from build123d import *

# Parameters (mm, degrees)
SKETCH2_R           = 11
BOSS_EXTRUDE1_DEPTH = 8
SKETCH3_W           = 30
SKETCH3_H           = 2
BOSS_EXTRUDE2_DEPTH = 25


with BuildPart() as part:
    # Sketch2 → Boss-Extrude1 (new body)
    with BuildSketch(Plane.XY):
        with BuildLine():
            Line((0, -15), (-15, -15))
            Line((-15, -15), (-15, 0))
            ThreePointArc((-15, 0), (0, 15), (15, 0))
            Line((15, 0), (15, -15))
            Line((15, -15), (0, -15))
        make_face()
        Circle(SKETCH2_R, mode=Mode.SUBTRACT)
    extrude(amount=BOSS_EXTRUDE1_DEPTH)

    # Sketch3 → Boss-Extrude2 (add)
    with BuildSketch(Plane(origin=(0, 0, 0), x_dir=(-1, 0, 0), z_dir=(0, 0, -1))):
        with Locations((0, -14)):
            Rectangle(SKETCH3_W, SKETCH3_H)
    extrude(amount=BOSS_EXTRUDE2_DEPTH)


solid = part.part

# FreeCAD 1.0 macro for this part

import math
import FreeCAD as App
import Part
import Sketcher
Q = App.Units.Quantity

doc = App.newDocument("Part")
params = doc.addObject("Spreadsheet::Sheet", "Params")
for row, (alias, value) in enumerate([
    ("sketch1_diameter", "22 mm"),
    ("sketch1_radius", "15 mm"),
    ("sketch1_height", "15 mm"),
    ("pad1_length", "8 mm"),
    ("sketch2_width", "30 mm"),
    ("sketch2_height", "2 mm"),
    ("pad2_length", "25 mm"),
], start=1):
    params.set(f"A{row}", alias)
    params.set(f"B{row}", "=" + value)
    params.setAlias(f"B{row}", alias)

body = doc.addObject("PartDesign::Body", "Body")

# Sketch on XY plane
sketch1 = doc.addObject("Sketcher::SketchObject", "Sketch")
body.addObject(sketch1)
sketch1.AttachmentSupport = (doc.XY_Plane, [""])
sketch1.MapMode = "FlatFace"
sketch1.addGeometry(Part.LineSegment(App.Vector(-15, 0, 0), App.Vector(-15, -15, 0)), False)
sketch1.addGeometry(Part.LineSegment(App.Vector(-15, -15, 0), App.Vector(15, -15, 0)), False)
sketch1.addGeometry(Part.LineSegment(App.Vector(15, -15, 0), App.Vector(15, 0, 0)), False)
sketch1.addGeometry(Part.ArcOfCircle(Part.Circle(App.Vector(0, 0, 0), App.Vector(0, 0, 1), 15), math.radians(0), math.radians(180)), False)
sketch1.addGeometry(Part.Circle(App.Vector(0, 0, 0), App.Vector(0, 0, 1), 11), False)
sketch1.addConstraint(Sketcher.Constraint("Coincident", 0, 2, 1, 1))
sketch1.addConstraint(Sketcher.Constraint("Coincident", 1, 2, 2, 1))
sketch1.addConstraint(Sketcher.Constraint("Tangent", 2, 2, 3, 1))
sketch1.addConstraint(Sketcher.Constraint("Tangent", 3, 2, 0, 1))
sketch1.addConstraint(Sketcher.Constraint("Vertical", 0))
sketch1.addConstraint(Sketcher.Constraint("Horizontal", 1))
sketch1.addConstraint(Sketcher.Constraint("Vertical", 2))
sketch1.addConstraint(Sketcher.Constraint("Coincident", 3, 3, -1, 1))
sketch1.addConstraint(Sketcher.Constraint("Coincident", 4, 3, -1, 1))
sketch1.addConstraint(Sketcher.Constraint("Diameter", 4, Q("22 mm")))
sketch1.addConstraint(Sketcher.Constraint("Radius", 3, Q("15 mm")))
sketch1.addConstraint(Sketcher.Constraint("DistanceY", 0, 2, 0, 1, Q("15 mm")))
sketch1.setExpression("Constraints[9]", "Params.sketch1_diameter")
sketch1.setExpression("Constraints[10]", "Params.sketch1_radius")
sketch1.setExpression("Constraints[11]", "Params.sketch1_height")
pad1 = doc.addObject("PartDesign::Pad", "Pad")
body.addObject(pad1)
pad1.Profile = sketch1
pad1.setExpression("Length", "Params.pad1_length")

# Sketch on XY plane
sketch2 = doc.addObject("Sketcher::SketchObject", "Sketch001")
body.addObject(sketch2)
sketch2.AttachmentSupport = (doc.XY_Plane, [""])
sketch2.MapMode = "FlatFace"
sketch2.addGeometry(Part.LineSegment(App.Vector(15, -13, 0), App.Vector(15, -15, 0)), False)
sketch2.addGeometry(Part.LineSegment(App.Vector(15, -15, 0), App.Vector(-15, -15, 0)), False)
sketch2.addGeometry(Part.LineSegment(App.Vector(-15, -15, 0), App.Vector(-15, -13, 0)), False)
sketch2.addGeometry(Part.LineSegment(App.Vector(-15, -13, 0), App.Vector(15, -13, 0)), False)
sketch2.addConstraint(Sketcher.Constraint("Coincident", 0, 2, 1, 1))
sketch2.addConstraint(Sketcher.Constraint("Coincident", 1, 2, 2, 1))
sketch2.addConstraint(Sketcher.Constraint("Coincident", 2, 2, 3, 1))
sketch2.addConstraint(Sketcher.Constraint("Coincident", 3, 2, 0, 1))
sketch2.addConstraint(Sketcher.Constraint("Vertical", 0))
sketch2.addConstraint(Sketcher.Constraint("Horizontal", 1))
sketch2.addConstraint(Sketcher.Constraint("Vertical", 2))
sketch2.addConstraint(Sketcher.Constraint("Horizontal", 3))
sketch2.addConstraint(Sketcher.Constraint("DistanceX", 1, 2, 1, 1, Q("30 mm")))
sketch2.addConstraint(Sketcher.Constraint("DistanceY", 0, 2, 0, 1, Q("2 mm")))
sketch2.addConstraint(Sketcher.Constraint("DistanceX", -1, 1, 0, 2, Q("15 mm")))
sketch2.addConstraint(Sketcher.Constraint("DistanceY", 0, 2, -1, 1, Q("15 mm")))
sketch2.setExpression("Constraints[8]", "Params.sketch2_width")
sketch2.setExpression("Constraints[9]", "Params.sketch2_height")
pad2 = doc.addObject("PartDesign::Pad", "Pad001")
body.addObject(pad2)
pad2.Profile = sketch2
pad2.setExpression("Length", "Params.pad2_length")
pad2.Reversed = True

doc.recompute()
